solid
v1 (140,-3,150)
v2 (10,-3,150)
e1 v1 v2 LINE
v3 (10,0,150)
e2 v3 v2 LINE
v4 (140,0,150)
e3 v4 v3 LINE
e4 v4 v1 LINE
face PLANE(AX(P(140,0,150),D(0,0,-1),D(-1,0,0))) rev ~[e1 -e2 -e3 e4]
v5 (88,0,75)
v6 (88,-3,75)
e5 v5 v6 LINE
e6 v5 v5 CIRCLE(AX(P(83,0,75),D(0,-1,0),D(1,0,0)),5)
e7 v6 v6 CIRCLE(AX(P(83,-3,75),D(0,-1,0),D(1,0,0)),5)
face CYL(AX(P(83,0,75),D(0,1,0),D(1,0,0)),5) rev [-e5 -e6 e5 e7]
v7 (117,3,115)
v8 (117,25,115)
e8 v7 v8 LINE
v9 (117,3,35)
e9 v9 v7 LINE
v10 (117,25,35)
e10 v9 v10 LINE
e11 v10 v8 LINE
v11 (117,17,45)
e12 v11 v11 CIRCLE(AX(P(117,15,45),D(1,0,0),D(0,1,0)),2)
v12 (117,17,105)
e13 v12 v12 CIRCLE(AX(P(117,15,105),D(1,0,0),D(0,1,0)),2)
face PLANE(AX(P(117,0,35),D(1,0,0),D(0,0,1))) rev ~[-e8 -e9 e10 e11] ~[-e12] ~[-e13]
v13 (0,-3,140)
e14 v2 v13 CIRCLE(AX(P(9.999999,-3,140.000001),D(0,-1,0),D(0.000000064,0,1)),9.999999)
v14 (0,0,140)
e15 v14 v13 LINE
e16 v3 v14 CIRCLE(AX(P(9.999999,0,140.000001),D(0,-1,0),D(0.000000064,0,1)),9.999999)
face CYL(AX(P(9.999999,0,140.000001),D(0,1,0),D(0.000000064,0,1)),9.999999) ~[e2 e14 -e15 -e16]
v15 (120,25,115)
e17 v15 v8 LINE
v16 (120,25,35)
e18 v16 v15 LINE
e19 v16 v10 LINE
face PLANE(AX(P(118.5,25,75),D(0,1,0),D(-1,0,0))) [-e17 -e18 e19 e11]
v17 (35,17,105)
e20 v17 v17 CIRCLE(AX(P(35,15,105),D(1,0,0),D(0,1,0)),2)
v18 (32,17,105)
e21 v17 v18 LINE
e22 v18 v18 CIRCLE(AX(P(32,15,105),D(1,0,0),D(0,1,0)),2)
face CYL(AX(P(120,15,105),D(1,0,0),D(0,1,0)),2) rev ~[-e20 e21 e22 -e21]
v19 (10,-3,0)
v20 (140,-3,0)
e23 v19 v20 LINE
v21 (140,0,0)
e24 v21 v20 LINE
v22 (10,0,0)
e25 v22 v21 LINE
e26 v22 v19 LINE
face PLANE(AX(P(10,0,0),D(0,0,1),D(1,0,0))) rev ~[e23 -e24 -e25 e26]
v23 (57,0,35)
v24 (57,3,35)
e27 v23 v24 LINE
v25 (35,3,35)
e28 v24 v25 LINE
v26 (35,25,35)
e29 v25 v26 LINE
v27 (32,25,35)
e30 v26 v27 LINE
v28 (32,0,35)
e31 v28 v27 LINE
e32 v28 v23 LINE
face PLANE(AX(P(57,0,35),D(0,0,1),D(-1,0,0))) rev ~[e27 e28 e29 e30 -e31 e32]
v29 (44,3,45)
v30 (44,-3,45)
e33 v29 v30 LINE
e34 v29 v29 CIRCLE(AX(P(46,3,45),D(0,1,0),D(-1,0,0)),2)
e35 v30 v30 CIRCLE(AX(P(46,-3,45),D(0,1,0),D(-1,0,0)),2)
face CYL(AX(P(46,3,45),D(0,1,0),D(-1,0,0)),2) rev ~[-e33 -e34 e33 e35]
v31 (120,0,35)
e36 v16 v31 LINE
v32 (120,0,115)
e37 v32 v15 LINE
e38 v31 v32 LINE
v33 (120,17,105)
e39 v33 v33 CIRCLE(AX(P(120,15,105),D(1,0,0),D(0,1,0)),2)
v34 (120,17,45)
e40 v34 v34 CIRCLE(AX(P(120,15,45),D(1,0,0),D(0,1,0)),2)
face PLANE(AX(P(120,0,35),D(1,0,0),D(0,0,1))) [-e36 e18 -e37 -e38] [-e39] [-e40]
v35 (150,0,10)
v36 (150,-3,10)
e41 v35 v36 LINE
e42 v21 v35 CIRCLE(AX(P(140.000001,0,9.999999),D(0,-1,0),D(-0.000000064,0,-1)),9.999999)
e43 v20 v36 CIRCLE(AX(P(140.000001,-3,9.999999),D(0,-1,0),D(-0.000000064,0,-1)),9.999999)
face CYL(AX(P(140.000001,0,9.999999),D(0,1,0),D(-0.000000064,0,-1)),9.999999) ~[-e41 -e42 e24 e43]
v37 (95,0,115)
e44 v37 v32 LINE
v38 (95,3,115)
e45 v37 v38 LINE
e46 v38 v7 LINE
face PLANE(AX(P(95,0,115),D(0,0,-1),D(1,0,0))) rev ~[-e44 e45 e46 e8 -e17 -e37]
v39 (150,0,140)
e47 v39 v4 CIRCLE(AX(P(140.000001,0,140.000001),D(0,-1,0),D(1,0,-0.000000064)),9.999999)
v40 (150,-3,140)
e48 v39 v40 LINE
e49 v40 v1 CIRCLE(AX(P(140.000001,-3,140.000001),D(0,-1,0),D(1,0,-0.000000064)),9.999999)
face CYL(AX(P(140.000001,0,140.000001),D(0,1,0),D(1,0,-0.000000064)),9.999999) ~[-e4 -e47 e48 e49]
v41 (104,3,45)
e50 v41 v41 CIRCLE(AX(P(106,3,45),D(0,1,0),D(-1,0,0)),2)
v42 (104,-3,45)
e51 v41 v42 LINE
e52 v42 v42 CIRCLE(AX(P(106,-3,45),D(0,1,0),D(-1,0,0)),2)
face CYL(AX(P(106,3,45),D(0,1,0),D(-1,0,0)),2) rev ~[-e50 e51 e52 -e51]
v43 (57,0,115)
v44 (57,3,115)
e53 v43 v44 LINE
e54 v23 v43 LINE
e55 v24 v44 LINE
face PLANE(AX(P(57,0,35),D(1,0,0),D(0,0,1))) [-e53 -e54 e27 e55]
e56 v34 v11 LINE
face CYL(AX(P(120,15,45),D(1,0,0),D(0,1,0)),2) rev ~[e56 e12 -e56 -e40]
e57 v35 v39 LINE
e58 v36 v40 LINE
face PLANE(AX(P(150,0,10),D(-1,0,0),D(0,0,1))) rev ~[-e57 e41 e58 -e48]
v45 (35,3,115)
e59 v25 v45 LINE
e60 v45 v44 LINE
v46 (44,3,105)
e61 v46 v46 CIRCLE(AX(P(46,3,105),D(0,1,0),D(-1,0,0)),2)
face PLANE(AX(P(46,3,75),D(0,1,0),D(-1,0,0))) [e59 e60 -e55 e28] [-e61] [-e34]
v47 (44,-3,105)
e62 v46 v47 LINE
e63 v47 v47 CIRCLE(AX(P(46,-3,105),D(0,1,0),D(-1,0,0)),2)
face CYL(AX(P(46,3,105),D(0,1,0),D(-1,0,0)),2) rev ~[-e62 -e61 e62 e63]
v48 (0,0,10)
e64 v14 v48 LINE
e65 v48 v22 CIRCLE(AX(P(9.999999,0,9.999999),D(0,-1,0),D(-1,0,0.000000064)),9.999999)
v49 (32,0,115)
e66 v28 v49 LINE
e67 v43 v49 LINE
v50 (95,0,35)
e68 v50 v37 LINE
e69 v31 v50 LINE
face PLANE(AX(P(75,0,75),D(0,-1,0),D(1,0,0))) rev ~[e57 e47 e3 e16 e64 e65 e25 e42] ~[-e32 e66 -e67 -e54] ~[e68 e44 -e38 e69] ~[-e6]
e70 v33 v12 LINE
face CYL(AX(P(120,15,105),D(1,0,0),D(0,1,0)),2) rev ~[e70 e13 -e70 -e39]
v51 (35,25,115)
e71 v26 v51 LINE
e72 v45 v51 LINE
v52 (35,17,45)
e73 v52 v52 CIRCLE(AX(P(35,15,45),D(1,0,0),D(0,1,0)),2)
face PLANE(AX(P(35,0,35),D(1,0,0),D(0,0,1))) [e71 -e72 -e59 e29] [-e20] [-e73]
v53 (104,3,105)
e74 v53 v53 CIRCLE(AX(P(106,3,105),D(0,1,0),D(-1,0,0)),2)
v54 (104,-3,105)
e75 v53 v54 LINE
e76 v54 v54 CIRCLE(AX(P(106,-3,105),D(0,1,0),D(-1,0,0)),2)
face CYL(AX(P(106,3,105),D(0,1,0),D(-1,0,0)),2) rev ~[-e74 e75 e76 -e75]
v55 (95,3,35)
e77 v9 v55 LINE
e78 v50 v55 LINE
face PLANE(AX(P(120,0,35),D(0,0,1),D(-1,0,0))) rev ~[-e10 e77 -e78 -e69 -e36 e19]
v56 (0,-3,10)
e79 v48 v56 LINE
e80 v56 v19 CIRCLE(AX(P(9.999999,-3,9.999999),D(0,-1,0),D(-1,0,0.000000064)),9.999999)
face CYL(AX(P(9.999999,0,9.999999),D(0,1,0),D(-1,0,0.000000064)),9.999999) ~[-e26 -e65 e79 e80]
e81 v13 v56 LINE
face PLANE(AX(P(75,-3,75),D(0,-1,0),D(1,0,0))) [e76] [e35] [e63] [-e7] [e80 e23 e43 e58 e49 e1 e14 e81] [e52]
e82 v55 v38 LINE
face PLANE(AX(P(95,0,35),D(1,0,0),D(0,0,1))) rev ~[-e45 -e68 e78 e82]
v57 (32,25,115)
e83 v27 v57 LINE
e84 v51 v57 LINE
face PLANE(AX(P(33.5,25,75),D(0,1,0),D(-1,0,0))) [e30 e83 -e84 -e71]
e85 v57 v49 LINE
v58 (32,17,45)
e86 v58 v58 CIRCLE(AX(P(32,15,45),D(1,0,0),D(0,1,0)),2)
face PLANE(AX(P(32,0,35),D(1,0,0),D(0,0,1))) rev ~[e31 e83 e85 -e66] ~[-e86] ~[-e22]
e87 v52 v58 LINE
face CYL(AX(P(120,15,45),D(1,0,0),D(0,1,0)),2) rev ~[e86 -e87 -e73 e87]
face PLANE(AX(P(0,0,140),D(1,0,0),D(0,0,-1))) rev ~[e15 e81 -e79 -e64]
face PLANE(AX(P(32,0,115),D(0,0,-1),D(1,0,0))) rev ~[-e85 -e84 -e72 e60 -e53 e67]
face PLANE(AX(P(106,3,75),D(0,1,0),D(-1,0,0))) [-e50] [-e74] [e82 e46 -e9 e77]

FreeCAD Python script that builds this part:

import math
import FreeCAD as App
import Part
import Sketcher
Q = App.Units.Quantity

doc = App.newDocument("Part")
params = doc.addObject("Spreadsheet::Sheet", "Params")
for row, (alias, value) in enumerate([
    ("sketch1_diameter", "10 mm"),
    ("sketch1_radius", "9.999999 mm"),
    ("sketch1_width", "130 mm"),
    ("pad1_length", "3 mm"),
    ("sketch2_width", "3 mm"),
    ("sketch2_height", "80 mm"),
    ("pad2_length", "25 mm"),
    ("sketch3_width", "25 mm"),
    ("sketch3_height", "80 mm"),
    ("pad3_length", "3 mm"),
    ("sketch4_diameter", "4 mm"),
    ("pocket1_length", "150 mm"),
    ("sketch5_diameter", "4 mm"),
    ("pocket2_length", "25 mm"),
], start=1):
    params.set(f"A{row}", alias)
    params.set(f"B{row}", "=" + value)
    params.setAlias(f"B{row}", alias)

body = doc.addObject("PartDesign::Body", "Body")

# Sketch on XZ plane
sketch1 = body.newObject("Sketcher::SketchObject", "Sketch")
sketch1.AttachmentSupport = (doc.getObject("XZ_Plane"), [""])
sketch1.MapMode = "FlatFace"
sketch1.addGeometry(Part.ArcOfCircle(Part.Circle(App.Vector(9.999999, 9.999999, 0), App.Vector(0, 0, 1), 9.999999), math.radians(179.999996), math.radians(270.000004)), False)
sketch1.addGeometry(Part.LineSegment(App.Vector(10, 0, 0), App.Vector(140, 0, 0)), False)
sketch1.addGeometry(Part.ArcOfCircle(Part.Circle(App.Vector(140.000001, 9.999999, 0), App.Vector(0, 0, 1), 9.999999), math.radians(-90.000004), math.radians(0.000004)), False)
sketch1.addGeometry(Part.LineSegment(App.Vector(150, 10, 0), App.Vector(150, 140, 0)), False)
sketch1.addGeometry(Part.ArcOfCircle(Part.Circle(App.Vector(140.000001, 140.000001, 0), App.Vector(0, 0, 1), 9.999999), math.radians(-0.000004), math.radians(90.000004)), False)
sketch1.addGeometry(Part.LineSegment(App.Vector(140, 150, 0), App.Vector(10, 150, 0)), False)
sketch1.addGeometry(Part.ArcOfCircle(Part.Circle(App.Vector(9.999999, 140.000001, 0), App.Vector(0, 0, 1), 9.999999), math.radians(89.999996), math.radians(180.000004)), False)
sketch1.addGeometry(Part.LineSegment(App.Vector(0, 140, 0), App.Vector(0, 10, 0)), False)
sketch1.addGeometry(Part.Circle(App.Vector(83, 75, 0), App.Vector(0, 0, 1), 5), False)
sketch1.addConstraint(Sketcher.Constraint("Tangent", 0, 2, 1, 1))
sketch1.addConstraint(Sketcher.Constraint("Tangent", 1, 2, 2, 1))
sketch1.addConstraint(Sketcher.Constraint("Tangent", 2, 2, 3, 1))
sketch1.addConstraint(Sketcher.Constraint("Tangent", 3, 2, 4, 1))
sketch1.addConstraint(Sketcher.Constraint("Tangent", 4, 2, 5, 1))
sketch1.addConstraint(Sketcher.Constraint("Tangent", 5, 2, 6, 1))
sketch1.addConstraint(Sketcher.Constraint("Tangent", 6, 2, 7, 1))
sketch1.addConstraint(Sketcher.Constraint("Tangent", 7, 2, 0, 1))
sketch1.addConstraint(Sketcher.Constraint("Horizontal", 1))
sketch1.addConstraint(Sketcher.Constraint("Vertical", 3))
sketch1.addConstraint(Sketcher.Constraint("Horizontal", 5))
sketch1.addConstraint(Sketcher.Constraint("Vertical", 7))
sketch1.addConstraint(Sketcher.Constraint("Equal", 0, 2))
sketch1.addConstraint(Sketcher.Constraint("Equal", 2, 4))
sketch1.addConstraint(Sketcher.Constraint("Equal", 4, 6))
sketch1.addConstraint(Sketcher.Constraint("PointOnObject", 0, 2, -1))
sketch1.addConstraint(Sketcher.Constraint("PointOnObject", 6, 2, -2))
sketch1.addConstraint(Sketcher.Constraint("Equal", 5, 3))
sketch1.addConstraint(Sketcher.Constraint("Diameter", 8, Q("10 mm")))
sketch1.addConstraint(Sketcher.Constraint("Radius", 0, Q("9.999999 mm")))
sketch1.addConstraint(Sketcher.Constraint("DistanceX", 1, 1, 1, 2, Q("130 mm")))
sketch1.addConstraint(Sketcher.Constraint("DistanceX", -1, 1, 8, 3, Q("83 mm")))
sketch1.addConstraint(Sketcher.Constraint("DistanceY", -1, 1, 8, 3, Q("75 mm")))
sketch1.setExpression("Constraints[18]", "Params.sketch1_diameter")
sketch1.setExpression("Constraints[19]", "Params.sketch1_radius")
sketch1.setExpression("Constraints[20]", "Params.sketch1_width")
pad1 = body.newObject("PartDesign::Pad", "Pad")
pad1.Profile = sketch1
pad1.setExpression("Length", "Params.pad1_length")

# Sketch on XZ plane
sketch2 = body.newObject("Sketcher::SketchObject", "Sketch001")
sketch2.AttachmentSupport = (doc.getObject("XZ_Plane"), [""])
sketch2.MapMode = "FlatFace"
sketch2.addGeometry(Part.LineSegment(App.Vector(120, 115, 0), App.Vector(120, 35, 0)), False)
sketch2.addGeometry(Part.LineSegment(App.Vector(120, 35, 0), App.Vector(117, 35, 0)), False)
sketch2.addGeometry(Part.LineSegment(App.Vector(117, 35, 0), App.Vector(117, 115, 0)), False)
sketch2.addGeometry(Part.LineSegment(App.Vector(117, 115, 0), App.Vector(120, 115, 0)), False)
sketch2.addGeometry(Part.LineSegment(App.Vector(35, 115, 0), App.Vector(35, 35, 0)), False)
sketch2.addGeometry(Part.LineSegment(App.Vector(35, 35, 0), App.Vector(32, 35, 0)), False)
sketch2.addGeometry(Part.LineSegment(App.Vector(32, 35, 0), App.Vector(32, 115, 0)), False)
sketch2.addGeometry(Part.LineSegment(App.Vector(32, 115, 0), App.Vector(35, 115, 0)), False)
sketch2.addConstraint(Sketcher.Constraint("Coincident", 0, 2, 1, 1))
sketch2.addConstraint(Sketcher.Constraint("Coincident", 1, 2, 2, 1))
sketch2.addConstraint(Sketcher.Constraint("Coincident", 2, 2, 3, 1))
sketch2.addConstraint(Sketcher.Constraint("Coincident", 3, 2, 0, 1))
sketch2.addConstraint(Sketcher.Constraint("Coincident", 4, 2, 5, 1))
sketch2.addConstraint(Sketcher.Constraint("Coincident", 5, 2, 6, 1))
sketch2.addConstraint(Sketcher.Constraint("Coincident", 6, 2, 7, 1))
sketch2.addConstraint(Sketcher.Constraint("Coincident", 7, 2, 4, 1))
sketch2.addConstraint(Sketcher.Constraint("Vertical", 0))
sketch2.addConstraint(Sketcher.Constraint("Horizontal", 1))
sketch2.addConstraint(Sketcher.Constraint("Vertical", 2))
sketch2.addConstraint(Sketcher.Constraint("Horizontal", 3))
sketch2.addConstraint(Sketcher.Constraint("Vertical", 4))
sketch2.addConstraint(Sketcher.Constraint("Horizontal", 5))
sketch2.addConstraint(Sketcher.Constraint("Vertical", 6))
sketch2.addConstraint(Sketcher.Constraint("Horizontal", 7))
sketch2.addConstraint(Sketcher.Constraint("Horizontal", 1, 2, 4, 2))
sketch2.addConstraint(Sketcher.Constraint("Horizontal", 3, 2, 6, 2))
sketch2.addConstraint(Sketcher.Constraint("Equal", 3, 5))
sketch2.addConstraint(Sketcher.Constraint("DistanceX", 1, 2, 1, 1, Q("3 mm")))
sketch2.addConstraint(Sketcher.Constraint("DistanceY", 0, 2, 0, 1, Q("80 mm")))
sketch2.addConstraint(Sketcher.Constraint("DistanceX", -1, 1, 0, 2, Q("120 mm")))
sketch2.addConstraint(Sketcher.Constraint("DistanceY", -1, 1, 0, 2, Q("35 mm")))
sketch2.addConstraint(Sketcher.Constraint("DistanceX", -1, 1, 4, 2, Q("35 mm")))
sketch2.setExpression("Constraints[19]", "Params.sketch2_width")
sketch2.setExpression("Constraints[20]", "Params.sketch2_height")
pad2 = body.newObject("PartDesign::Pad", "Pad001")
pad2.Profile = sketch2
pad2.setExpression("Length", "Params.pad2_length")
pad2.Reversed = True

# Sketch on XZ plane
sketch3 = body.newObject("Sketcher::SketchObject", "Sketch002")
sketch3.AttachmentSupport = (doc.getObject("XZ_Plane"), [""])
sketch3.MapMode = "FlatFace"
sketch3.addGeometry(Part.LineSegment(App.Vector(95, 35, 0), App.Vector(95, 115, 0)), False)
sketch3.addGeometry(Part.LineSegment(App.Vector(95, 115, 0), App.Vector(120, 115, 0)), False)
sketch3.addGeometry(Part.LineSegment(App.Vector(120, 115, 0), App.Vector(120, 35, 0)), False)
sketch3.addGeometry(Part.LineSegment(App.Vector(120, 35, 0), App.Vector(95, 35, 0)), False)
sketch3.addGeometry(Part.LineSegment(App.Vector(57, 115, 0), App.Vector(57, 35, 0)), False)
sketch3.addGeometry(Part.LineSegment(App.Vector(57, 35, 0), App.Vector(32, 35, 0)), False)
sketch3.addGeometry(Part.LineSegment(App.Vector(32, 35, 0), App.Vector(32, 115, 0)), False)
sketch3.addGeometry(Part.LineSegment(App.Vector(32, 115, 0), App.Vector(57, 115, 0)), False)
sketch3.addConstraint(Sketcher.Constraint("Coincident", 0, 2, 1, 1))
sketch3.addConstraint(Sketcher.Constraint("Coincident", 1, 2, 2, 1))
sketch3.addConstraint(Sketcher.Constraint("Coincident", 2, 2, 3, 1))
sketch3.addConstraint(Sketcher.Constraint("Coincident", 3, 2, 0, 1))
sketch3.addConstraint(Sketcher.Constraint("Coincident", 4, 2, 5, 1))
sketch3.addConstraint(Sketcher.Constraint("Coincident", 5, 2, 6, 1))
sketch3.addConstraint(Sketcher.Constraint("Coincident", 6, 2, 7, 1))
sketch3.addConstraint(Sketcher.Constraint("Coincident", 7, 2, 4, 1))
sketch3.addConstraint(Sketcher.Constraint("Vertical", 0))
sketch3.addConstraint(Sketcher.Constraint("Horizontal", 1))
sketch3.addConstraint(Sketcher.Constraint("Vertical", 2))
sketch3.addConstraint(Sketcher.Constraint("Horizontal", 3))
sketch3.addConstraint(Sketcher.Constraint("Vertical", 4))
sketch3.addConstraint(Sketcher.Constraint("Horizontal", 5))
sketch3.addConstraint(Sketcher.Constraint("Vertical", 6))
sketch3.addConstraint(Sketcher.Constraint("Horizontal", 7))
sketch3.addConstraint(Sketcher.Constraint("Horizontal", 3, 2, 4, 2))
sketch3.addConstraint(Sketcher.Constraint("Horizontal", 1, 2, 6, 2))
sketch3.addConstraint(Sketcher.Constraint("Equal", 3, 5))
sketch3.addConstraint(Sketcher.Constraint("DistanceX", 1, 1, 1, 2, Q("25 mm")))
sketch3.addConstraint(Sketcher.Constraint("DistanceY", 0, 1, 0, 2, Q("80 mm")))
sketch3.addConstraint(Sketcher.Constraint("DistanceX", -1, 1, 0, 2, Q("95 mm")))
sketch3.addConstraint(Sketcher.Constraint("DistanceY", -1, 1, 0, 2, Q("115 mm")))
sketch3.addConstraint(Sketcher.Constraint("DistanceX", -1, 1, 4, 2, Q("57 mm")))
sketch3.setExpression("Constraints[19]", "Params.sketch3_width")
sketch3.setExpression("Constraints[20]", "Params.sketch3_height")
pad3 = body.newObject("PartDesign::Pad", "Pad002")
pad3.Profile = sketch3
pad3.setExpression("Length", "Params.pad3_length")
pad3.Reversed = True

# Sketch on YZ plane
sketch4 = body.newObject("Sketcher::SketchObject", "Sketch003")
sketch4.AttachmentSupport = (doc.getObject("YZ_Plane"), [""])
sketch4.MapMode = "FlatFace"
sketch4.AttachmentOffset = App.Placement(App.Vector(0, 0, 120), App.Rotation())
sketch4.addGeometry(Part.Circle(App.Vector(15, 105, 0), App.Vector(0, 0, 1), 2), False)
sketch4.addGeometry(Part.Circle(App.Vector(15, 45, 0), App.Vector(0, 0, 1), 2), False)
sketch4.addConstraint(Sketcher.Constraint("Equal", 0, 1))
sketch4.addConstraint(Sketcher.Constraint("Vertical", 0, 3, 1, 3))
sketch4.addConstraint(Sketcher.Constraint("Diameter", 0, Q("4 mm")))
sketch4.addConstraint(Sketcher.Constraint("DistanceX", -1, 1, 0, 3, Q("15 mm")))
sketch4.addConstraint(Sketcher.Constraint("DistanceY", -1, 1, 0, 3, Q("105 mm")))
sketch4.addConstraint(Sketcher.Constraint("DistanceY", -1, 1, 1, 3, Q("45 mm")))
sketch4.setExpression("Constraints[2]", "Params.sketch4_diameter")
pocket1 = body.newObject("PartDesign::Pocket", "Pocket")
pocket1.Profile = sketch4
pocket1.setExpression("Length", "Params.pocket1_length")

# Sketch on XZ plane
sketch5 = body.newObject("Sketcher::SketchObject", "Sketch004")
sketch5.AttachmentSupport = (doc.getObject("XZ_Plane"), [""])
sketch5.MapMode = "FlatFace"
sketch5.AttachmentOffset = App.Placement(App.Vector(0, 0, -3), App.Rotation())
sketch5.addGeometry(Part.Circle(App.Vector(46, 45, 0), App.Vector(0, 0, 1), 2), False)
sketch5.addGeometry(Part.Circle(App.Vector(46, 105, 0), App.Vector(0, 0, 1), 2), False)
sketch5.addGeometry(Part.Circle(App.Vector(106, 45, 0), App.Vector(0, 0, 1), 2), False)
sketch5.addGeometry(Part.Circle(App.Vector(106, 105, 0), App.Vector(0, 0, 1), 2), False)
sketch5.addConstraint(Sketcher.Constraint("Equal", 0, 1))
sketch5.addConstraint(Sketcher.Constraint("Equal", 1, 2))
sketch5.addConstraint(Sketcher.Constraint("Equal", 2, 3))
sketch5.addConstraint(Sketcher.Constraint("Horizontal", 0, 3, 2, 3))
sketch5.addConstraint(Sketcher.Constraint("Horizontal", 1, 3, 3, 3))
sketch5.addConstraint(Sketcher.Constraint("Vertical", 0, 3, 1, 3))
sketch5.addConstraint(Sketcher.Constraint("Vertical", 2, 3, 3, 3))
sketch5.addConstraint(Sketcher.Constraint("Diameter", 0, Q("4 mm")))
sketch5.addConstraint(Sketcher.Constraint("DistanceX", -1, 1, 0, 3, Q("46 mm")))
sketch5.addConstraint(Sketcher.Constraint("DistanceY", -1, 1, 0, 3, Q("45 mm")))
sketch5.addConstraint(Sketcher.Constraint("DistanceY", -1, 1, 1, 3, Q("105 mm")))
sketch5.addConstraint(Sketcher.Constraint("DistanceX", -1, 1, 2, 3, Q("106 mm")))
sketch5.setExpression("Constraints[7]", "Params.sketch5_diameter")
pocket2 = body.newObject("PartDesign::Pocket", "Pocket001")
pocket2.Profile = sketch5
pocket2.setExpression("Length", "Params.pocket2_length")
pocket2.Reversed = True

doc.recompute()
